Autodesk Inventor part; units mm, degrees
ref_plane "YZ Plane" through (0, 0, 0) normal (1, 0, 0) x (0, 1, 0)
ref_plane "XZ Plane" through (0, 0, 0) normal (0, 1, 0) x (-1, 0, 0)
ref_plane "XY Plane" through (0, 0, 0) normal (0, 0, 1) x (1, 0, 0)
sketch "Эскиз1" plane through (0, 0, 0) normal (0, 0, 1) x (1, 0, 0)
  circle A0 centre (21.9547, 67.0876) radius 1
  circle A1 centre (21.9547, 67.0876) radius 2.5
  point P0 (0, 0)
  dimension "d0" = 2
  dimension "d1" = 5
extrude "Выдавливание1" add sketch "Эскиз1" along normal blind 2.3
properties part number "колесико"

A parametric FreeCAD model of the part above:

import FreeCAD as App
import Part
import Sketcher

V = App.Vector
Q = App.Units.Quantity

doc = App.newDocument("Part")
body = doc.addObject("PartDesign::Body", "Body")

# Sketch on XY plane
sketch1 = body.newObject("Sketcher::SketchObject", "Sketch")
sketch1.AttachmentSupport = (doc.getObject("XY_Plane"), [""])
sketch1.MapMode = "FlatFace"
sketch1.addGeometry(Part.Circle(V(22, 67.1, 0), V(0, 0, 1), 2.5), False)
sketch1.addGeometry(Part.Circle(V(22, 67.1, 0), V(0, 0, 1), 1), False)
sketch1.addConstraint(Sketcher.Constraint("Coincident", 1, 3, 0, 3))
sketch1.addConstraint(Sketcher.Constraint("Diameter", 0, Q("5 mm")))
sketch1.addConstraint(Sketcher.Constraint("Diameter", 1, Q("2 mm")))
sketch1.addConstraint(Sketcher.Constraint("DistanceX", -1, 1, 0, 3, Q("21.9547 mm")))
sketch1.addConstraint(Sketcher.Constraint("DistanceY", -1, 1, 0, 3, Q("67.0876 mm")))
pad1 = body.newObject("PartDesign::Pad", "Pad")
pad1.Profile = sketch1
pad1.Length = 2.3

doc.recompute()
